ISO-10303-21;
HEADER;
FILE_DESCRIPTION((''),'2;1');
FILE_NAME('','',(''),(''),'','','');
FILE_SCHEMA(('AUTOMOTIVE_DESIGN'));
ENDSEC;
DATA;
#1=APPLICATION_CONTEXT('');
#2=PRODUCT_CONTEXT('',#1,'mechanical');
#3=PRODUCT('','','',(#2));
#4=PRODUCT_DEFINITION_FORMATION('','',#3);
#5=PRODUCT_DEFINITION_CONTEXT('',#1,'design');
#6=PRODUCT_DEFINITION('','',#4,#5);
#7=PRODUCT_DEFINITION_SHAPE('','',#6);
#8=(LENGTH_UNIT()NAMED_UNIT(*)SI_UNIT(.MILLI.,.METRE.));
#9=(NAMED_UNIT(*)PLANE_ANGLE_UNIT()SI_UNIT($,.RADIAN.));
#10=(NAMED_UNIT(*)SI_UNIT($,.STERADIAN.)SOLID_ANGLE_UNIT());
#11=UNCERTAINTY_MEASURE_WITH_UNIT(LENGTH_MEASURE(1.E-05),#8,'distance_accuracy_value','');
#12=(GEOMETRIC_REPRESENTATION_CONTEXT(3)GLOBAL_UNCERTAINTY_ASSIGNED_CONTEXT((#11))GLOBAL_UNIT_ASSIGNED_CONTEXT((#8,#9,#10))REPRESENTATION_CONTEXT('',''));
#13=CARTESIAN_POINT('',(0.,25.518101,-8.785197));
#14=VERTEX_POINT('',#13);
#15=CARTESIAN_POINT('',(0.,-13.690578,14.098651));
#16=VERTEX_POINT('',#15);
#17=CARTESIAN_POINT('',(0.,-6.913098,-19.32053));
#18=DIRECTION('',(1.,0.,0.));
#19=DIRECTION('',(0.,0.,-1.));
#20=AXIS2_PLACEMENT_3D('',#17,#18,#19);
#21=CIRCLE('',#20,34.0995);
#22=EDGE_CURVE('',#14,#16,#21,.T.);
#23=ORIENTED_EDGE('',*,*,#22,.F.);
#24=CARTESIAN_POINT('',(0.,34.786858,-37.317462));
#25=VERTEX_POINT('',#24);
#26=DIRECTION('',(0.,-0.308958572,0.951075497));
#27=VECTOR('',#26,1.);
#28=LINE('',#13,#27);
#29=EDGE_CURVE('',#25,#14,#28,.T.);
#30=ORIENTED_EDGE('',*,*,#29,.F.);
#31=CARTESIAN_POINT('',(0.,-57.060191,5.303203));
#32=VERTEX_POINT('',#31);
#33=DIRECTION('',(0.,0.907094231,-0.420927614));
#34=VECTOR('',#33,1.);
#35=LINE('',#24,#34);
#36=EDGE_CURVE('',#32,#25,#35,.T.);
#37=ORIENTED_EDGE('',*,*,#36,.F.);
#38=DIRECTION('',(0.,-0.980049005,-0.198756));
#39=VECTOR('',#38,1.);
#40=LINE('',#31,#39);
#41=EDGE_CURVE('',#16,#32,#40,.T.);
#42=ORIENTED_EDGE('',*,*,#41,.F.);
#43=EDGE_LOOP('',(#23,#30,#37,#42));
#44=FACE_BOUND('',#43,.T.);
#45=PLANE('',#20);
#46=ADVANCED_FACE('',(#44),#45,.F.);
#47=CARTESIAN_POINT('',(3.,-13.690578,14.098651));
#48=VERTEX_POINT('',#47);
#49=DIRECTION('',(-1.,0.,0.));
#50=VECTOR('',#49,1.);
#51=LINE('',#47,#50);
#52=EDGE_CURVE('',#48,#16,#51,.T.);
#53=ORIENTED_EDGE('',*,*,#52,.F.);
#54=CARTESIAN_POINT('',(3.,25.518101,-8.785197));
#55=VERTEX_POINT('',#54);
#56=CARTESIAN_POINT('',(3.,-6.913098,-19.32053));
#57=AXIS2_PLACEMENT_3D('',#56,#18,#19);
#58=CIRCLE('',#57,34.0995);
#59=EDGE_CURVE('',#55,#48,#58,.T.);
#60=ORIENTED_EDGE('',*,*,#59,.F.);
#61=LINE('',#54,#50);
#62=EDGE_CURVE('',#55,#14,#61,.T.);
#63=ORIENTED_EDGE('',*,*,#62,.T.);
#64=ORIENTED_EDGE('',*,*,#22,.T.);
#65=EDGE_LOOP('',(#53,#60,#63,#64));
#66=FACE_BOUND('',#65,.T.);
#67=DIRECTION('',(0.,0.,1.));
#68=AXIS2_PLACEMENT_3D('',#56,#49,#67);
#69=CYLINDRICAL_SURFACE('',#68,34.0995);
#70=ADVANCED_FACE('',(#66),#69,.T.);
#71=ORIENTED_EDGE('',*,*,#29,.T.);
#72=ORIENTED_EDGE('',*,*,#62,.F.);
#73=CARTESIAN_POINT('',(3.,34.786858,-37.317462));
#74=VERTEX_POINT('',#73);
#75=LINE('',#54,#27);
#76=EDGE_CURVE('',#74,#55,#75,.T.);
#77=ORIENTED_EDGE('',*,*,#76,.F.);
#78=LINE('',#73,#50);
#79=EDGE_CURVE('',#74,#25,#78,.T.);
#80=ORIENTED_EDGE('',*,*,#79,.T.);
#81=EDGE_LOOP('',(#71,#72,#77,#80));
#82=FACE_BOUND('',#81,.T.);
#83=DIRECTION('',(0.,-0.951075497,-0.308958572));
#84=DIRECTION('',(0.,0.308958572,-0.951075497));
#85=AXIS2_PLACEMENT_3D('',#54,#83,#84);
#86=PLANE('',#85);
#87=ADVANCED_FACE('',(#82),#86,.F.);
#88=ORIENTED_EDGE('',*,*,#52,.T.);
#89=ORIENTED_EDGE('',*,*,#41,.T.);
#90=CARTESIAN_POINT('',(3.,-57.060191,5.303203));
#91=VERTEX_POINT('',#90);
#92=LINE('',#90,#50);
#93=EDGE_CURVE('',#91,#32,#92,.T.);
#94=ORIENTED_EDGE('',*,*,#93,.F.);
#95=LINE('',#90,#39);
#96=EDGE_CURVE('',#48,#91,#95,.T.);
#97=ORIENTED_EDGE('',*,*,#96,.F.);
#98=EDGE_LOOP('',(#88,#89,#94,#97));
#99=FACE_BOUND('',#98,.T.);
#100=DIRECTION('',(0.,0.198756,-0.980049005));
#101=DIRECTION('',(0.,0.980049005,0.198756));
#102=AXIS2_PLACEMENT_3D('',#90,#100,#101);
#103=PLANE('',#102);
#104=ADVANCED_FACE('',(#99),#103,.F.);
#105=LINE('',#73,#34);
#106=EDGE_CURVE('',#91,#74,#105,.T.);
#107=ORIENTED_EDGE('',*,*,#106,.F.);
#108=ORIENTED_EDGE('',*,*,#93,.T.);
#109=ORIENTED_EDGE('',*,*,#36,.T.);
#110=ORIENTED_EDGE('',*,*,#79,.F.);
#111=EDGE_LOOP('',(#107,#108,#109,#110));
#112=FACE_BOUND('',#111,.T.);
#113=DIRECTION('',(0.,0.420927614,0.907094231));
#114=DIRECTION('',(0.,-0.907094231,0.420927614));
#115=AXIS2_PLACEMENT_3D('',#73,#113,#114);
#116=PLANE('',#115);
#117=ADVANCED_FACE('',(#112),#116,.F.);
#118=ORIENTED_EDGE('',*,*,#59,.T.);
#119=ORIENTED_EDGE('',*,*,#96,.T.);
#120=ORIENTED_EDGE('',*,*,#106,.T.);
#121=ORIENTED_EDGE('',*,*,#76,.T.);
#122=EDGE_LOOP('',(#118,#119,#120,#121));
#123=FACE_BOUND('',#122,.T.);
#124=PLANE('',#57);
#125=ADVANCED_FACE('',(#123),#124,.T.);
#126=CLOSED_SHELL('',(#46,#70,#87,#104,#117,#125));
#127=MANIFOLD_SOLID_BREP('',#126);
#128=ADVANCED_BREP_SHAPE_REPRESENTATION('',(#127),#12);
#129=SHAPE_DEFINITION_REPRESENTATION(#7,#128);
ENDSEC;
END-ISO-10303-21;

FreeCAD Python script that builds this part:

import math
import FreeCAD as App
import Part
import Sketcher
from FreeCAD import Vector

doc = App.newDocument("Part")
body = doc.addObject("PartDesign::Body", "Body")

sketch1 = doc.addObject("Sketcher::SketchObject", "Sketch")
body.addObject(sketch1)
sketch1.AttachmentSupport = (doc.YZ_Plane, [""])
sketch1.MapMode = "FlatFace"
sketch1.addGeometry(Part.LineSegment(Vector(35, -37, 0), Vector(26, -9, 0)), False)
sketch1.addGeometry(Part.ArcOfCircle(Part.Circle(Vector(-7, -19, 0), Vector(0, 0, 1), 34), math.radians(18), math.radians(101)), False)
sketch1.addGeometry(Part.LineSegment(Vector(-14, 14, 0), Vector(-57, 5, 0)), False)
sketch1.addGeometry(Part.LineSegment(Vector(-57, 5, 0), Vector(35, -37, 0)), False)
sketch1.addConstraint(Sketcher.Constraint("Tangent", 0, 2, 1, 1))
sketch1.addConstraint(Sketcher.Constraint("Tangent", 1, 2, 2, 1))
sketch1.addConstraint(Sketcher.Constraint("Coincident", 2, 2, 3, 1))
sketch1.addConstraint(Sketcher.Constraint("Coincident", 3, 2, 0, 1))
sketch1.addConstraint(Sketcher.Constraint("Distance", 0, 30.0))
sketch1.addConstraint(Sketcher.Constraint("Radius", 1, 34.0995))
sketch1.addConstraint(Sketcher.Constraint("DistanceX", 1, 3, -1, 1, 6.913098))
sketch1.addConstraint(Sketcher.Constraint("DistanceX", -1, 1, 0, 2, 25.518101))
sketch1.addConstraint(Sketcher.Constraint("DistanceY", 0, 2, 2, 2, 14.0884))
sketch1.addConstraint(Sketcher.Constraint("DistanceY", 1, 3, -1, 1, 19.32053))
sketch1.addConstraint(Sketcher.Constraint("DistanceX", 1, 2, -1, 1, 13.690578))
pad1 = doc.addObject("PartDesign::Pad", "Pad")
body.addObject(pad1)
pad1.Profile = sketch1
pad1.Length = 3

doc.recompute()
